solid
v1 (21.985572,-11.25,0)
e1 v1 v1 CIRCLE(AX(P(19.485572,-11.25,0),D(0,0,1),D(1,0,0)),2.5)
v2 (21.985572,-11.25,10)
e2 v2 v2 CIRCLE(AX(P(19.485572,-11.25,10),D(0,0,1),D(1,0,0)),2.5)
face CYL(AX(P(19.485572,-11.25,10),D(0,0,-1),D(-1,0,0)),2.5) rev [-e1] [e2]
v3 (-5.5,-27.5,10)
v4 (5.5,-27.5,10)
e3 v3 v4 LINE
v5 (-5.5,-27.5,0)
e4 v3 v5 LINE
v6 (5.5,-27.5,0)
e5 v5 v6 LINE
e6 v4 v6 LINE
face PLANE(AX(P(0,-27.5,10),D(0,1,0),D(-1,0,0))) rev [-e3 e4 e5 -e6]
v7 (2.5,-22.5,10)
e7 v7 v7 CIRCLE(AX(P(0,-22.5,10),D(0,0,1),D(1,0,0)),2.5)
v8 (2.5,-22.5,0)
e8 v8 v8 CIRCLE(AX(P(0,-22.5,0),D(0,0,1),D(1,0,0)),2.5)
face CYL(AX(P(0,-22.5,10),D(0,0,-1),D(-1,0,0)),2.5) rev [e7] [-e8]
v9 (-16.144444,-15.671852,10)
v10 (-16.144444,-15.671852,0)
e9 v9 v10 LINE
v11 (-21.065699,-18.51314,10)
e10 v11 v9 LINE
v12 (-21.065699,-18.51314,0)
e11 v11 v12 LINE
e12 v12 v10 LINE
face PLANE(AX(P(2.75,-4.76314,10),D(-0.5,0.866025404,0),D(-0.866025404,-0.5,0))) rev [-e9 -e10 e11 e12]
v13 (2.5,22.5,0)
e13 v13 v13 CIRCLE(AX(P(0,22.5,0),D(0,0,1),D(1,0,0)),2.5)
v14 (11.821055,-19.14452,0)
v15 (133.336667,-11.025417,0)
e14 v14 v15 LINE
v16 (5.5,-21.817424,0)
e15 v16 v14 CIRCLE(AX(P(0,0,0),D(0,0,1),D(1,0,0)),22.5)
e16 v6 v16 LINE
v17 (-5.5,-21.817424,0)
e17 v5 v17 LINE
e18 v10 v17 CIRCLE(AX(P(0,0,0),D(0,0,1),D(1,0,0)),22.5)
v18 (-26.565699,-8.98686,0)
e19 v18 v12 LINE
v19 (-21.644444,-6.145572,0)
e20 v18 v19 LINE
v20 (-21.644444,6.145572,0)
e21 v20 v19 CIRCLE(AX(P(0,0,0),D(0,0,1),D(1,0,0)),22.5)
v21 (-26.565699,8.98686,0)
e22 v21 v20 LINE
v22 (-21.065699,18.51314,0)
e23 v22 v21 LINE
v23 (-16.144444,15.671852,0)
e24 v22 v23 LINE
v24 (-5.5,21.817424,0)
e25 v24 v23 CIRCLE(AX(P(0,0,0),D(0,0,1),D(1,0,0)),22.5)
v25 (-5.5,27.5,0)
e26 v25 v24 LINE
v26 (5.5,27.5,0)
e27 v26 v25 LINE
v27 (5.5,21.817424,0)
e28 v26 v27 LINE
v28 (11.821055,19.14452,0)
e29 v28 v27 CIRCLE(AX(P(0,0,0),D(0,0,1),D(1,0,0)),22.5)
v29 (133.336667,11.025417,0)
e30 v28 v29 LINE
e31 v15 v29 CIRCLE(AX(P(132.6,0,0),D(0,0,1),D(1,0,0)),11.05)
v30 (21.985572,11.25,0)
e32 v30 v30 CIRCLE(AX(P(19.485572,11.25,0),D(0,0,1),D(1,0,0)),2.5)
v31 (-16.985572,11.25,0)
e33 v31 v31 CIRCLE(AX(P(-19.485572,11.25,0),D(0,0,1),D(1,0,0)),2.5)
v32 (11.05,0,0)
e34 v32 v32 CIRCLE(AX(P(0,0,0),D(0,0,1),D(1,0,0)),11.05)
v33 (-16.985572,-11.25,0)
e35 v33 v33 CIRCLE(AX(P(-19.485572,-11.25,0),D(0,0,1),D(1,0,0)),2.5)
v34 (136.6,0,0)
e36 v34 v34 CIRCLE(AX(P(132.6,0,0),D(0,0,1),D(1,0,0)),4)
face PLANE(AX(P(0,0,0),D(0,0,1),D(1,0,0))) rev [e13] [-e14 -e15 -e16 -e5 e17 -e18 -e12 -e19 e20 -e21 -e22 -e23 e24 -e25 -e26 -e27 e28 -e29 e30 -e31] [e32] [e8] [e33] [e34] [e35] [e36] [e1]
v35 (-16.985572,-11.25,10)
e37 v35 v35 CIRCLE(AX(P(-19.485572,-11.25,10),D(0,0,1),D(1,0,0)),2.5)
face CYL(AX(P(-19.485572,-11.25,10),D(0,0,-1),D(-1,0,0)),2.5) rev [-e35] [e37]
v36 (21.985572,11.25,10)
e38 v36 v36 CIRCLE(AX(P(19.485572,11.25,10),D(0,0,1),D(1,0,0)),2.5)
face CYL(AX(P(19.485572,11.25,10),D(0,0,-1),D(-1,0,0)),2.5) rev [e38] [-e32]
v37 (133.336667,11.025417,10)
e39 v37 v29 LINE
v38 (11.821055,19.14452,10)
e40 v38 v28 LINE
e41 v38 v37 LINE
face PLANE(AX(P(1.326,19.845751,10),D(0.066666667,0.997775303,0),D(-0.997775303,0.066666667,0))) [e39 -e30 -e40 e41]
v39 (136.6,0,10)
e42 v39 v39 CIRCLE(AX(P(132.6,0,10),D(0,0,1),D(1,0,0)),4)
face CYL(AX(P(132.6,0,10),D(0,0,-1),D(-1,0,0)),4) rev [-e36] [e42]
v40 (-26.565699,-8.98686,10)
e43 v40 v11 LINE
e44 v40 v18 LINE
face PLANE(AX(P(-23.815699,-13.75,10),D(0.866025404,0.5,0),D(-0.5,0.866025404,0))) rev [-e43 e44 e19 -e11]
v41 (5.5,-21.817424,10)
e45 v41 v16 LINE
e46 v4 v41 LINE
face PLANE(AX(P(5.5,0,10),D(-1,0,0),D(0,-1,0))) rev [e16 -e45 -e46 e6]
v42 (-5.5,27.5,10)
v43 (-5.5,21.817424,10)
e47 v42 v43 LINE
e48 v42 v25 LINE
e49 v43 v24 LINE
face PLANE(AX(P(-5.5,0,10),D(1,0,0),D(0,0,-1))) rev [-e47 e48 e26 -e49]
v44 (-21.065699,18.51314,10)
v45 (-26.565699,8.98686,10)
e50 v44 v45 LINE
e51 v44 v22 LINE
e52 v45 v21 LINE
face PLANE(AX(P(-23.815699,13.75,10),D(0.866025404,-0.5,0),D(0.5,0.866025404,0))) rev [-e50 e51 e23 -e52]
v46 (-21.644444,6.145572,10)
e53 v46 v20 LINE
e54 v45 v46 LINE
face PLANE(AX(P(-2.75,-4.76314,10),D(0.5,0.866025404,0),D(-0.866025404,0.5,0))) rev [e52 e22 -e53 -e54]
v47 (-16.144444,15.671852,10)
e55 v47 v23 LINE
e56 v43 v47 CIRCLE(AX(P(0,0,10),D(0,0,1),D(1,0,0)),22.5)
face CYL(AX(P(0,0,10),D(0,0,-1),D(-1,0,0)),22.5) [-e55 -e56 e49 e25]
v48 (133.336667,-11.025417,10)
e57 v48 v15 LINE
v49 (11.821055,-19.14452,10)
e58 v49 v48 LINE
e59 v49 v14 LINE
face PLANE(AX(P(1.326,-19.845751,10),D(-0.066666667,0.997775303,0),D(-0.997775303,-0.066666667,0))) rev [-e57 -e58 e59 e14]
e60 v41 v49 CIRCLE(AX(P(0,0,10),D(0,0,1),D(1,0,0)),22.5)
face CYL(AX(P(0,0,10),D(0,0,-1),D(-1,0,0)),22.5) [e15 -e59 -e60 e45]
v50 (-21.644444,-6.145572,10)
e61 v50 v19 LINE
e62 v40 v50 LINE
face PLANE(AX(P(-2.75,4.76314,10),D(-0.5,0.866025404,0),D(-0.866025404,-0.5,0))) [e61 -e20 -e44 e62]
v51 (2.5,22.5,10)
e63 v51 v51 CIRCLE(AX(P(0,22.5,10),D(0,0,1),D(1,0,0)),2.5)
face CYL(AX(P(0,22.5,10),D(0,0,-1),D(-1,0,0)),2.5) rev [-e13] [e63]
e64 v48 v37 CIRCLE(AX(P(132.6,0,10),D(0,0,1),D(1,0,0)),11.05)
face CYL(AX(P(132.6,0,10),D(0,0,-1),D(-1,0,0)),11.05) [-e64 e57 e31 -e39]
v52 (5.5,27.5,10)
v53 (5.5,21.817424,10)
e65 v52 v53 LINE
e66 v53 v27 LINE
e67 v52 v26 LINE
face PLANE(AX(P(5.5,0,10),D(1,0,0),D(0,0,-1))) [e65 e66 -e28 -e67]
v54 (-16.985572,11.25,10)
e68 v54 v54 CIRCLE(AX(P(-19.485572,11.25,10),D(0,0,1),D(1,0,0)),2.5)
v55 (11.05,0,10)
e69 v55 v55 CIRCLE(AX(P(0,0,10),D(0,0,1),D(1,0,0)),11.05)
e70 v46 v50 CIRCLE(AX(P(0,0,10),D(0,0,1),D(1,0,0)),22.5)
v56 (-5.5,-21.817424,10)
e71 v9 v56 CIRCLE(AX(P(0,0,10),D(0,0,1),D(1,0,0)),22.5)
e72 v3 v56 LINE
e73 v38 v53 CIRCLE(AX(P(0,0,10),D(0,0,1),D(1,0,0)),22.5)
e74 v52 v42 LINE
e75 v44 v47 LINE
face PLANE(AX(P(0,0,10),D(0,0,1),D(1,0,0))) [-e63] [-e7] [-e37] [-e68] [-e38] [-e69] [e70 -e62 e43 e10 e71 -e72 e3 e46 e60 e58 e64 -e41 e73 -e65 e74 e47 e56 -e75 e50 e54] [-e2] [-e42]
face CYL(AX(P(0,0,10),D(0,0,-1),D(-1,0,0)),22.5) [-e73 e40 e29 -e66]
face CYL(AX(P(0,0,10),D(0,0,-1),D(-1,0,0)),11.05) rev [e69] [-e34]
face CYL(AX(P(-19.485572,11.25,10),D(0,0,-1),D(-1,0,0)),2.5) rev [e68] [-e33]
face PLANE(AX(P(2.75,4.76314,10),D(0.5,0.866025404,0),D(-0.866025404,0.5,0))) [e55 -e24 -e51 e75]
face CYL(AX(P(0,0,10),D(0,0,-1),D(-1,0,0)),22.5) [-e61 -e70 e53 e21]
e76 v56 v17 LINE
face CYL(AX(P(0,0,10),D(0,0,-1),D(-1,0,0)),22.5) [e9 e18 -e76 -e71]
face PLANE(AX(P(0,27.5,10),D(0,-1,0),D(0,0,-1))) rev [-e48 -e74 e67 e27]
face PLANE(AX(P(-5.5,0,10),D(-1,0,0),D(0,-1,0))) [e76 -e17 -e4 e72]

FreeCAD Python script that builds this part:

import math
import FreeCAD as App
import Part
import Sketcher
Q = App.Units.Quantity

doc = App.newDocument("Part")
params = doc.addObject("Spreadsheet::Sheet", "Params")
for row, (alias, value) in enumerate([
    ("sketch1_diameter", "5 mm"),
    ("sketch1_diameter2", "8 mm"),
    ("sketch1_diameter3", "22.1 mm"),
    ("sketch1_radius", "22.5 mm"),
    ("sketch1_width", "11 mm"),
    ("pad1_length", "10 mm"),
], start=1):
    params.set(f"A{row}", alias)
    params.set(f"B{row}", "=" + value)
    params.setAlias(f"B{row}", alias)

body = doc.addObject("PartDesign::Body", "Body")

# Sketch on XY plane
sketch1 = body.newObject("Sketcher::SketchObject", "Sketch")
sketch1.AttachmentSupport = (doc.getObject("XY_Plane"), [""])
sketch1.MapMode = "FlatFace"
sketch1.addGeometry(Part.ArcOfCircle(Part.Circle(App.Vector(0, 0, 0), App.Vector(0, 0, 1), 22.5), math.radians(58.31), math.radians(75.85)), False)
sketch1.addGeometry(Part.LineSegment(App.Vector(5.5, 21.8, 0), App.Vector(5.5, 27.5, 0)), False)
sketch1.addGeometry(Part.LineSegment(App.Vector(5.5, 27.5, 0), App.Vector(-5.5, 27.5, 0)), False)
sketch1.addGeometry(Part.LineSegment(App.Vector(-5.5, 27.5, 0), App.Vector(-5.5, 21.8, 0)), False)
sketch1.addGeometry(Part.ArcOfCircle(Part.Circle(App.Vector(0, 0, 0), App.Vector(0, 0, 1), 22.5), math.radians(104), math.radians(136)), False)
sketch1.addGeometry(Part.LineSegment(App.Vector(-16.1, 15.7, 0), App.Vector(-21.1, 18.5, 0)), False)
sketch1.addGeometry(Part.LineSegment(App.Vector(-21.1, 18.5, 0), App.Vector(-26.6, 9, 0)), False)
sketch1.addGeometry(Part.LineSegment(App.Vector(-26.6, 9, 0), App.Vector(-21.6, 6.1, 0)), False)
sketch1.addGeometry(Part.ArcOfCircle(Part.Circle(App.Vector(0, 0, 0), App.Vector(0, 0, 1), 22.5), math.radians(164), math.radians(196)), False)
sketch1.addGeometry(Part.LineSegment(App.Vector(-21.6, -6.1, 0), App.Vector(-26.6, -9, 0)), False)
sketch1.addGeometry(Part.LineSegment(App.Vector(-26.6, -9, 0), App.Vector(-21.1, -18.5, 0)), False)
sketch1.addGeometry(Part.LineSegment(App.Vector(-21.1, -18.5, 0), App.Vector(-16.1, -15.7, 0)), False)
sketch1.addGeometry(Part.ArcOfCircle(Part.Circle(App.Vector(0, 0, 0), App.Vector(0, 0, 1), 22.5), math.radians(-136), math.radians(-104)), False)
sketch1.addGeometry(Part.LineSegment(App.Vector(-5.5, -21.8, 0), App.Vector(-5.5, -27.5, 0)), False)
sketch1.addGeometry(Part.LineSegment(App.Vector(-5.5, -27.5, 0), App.Vector(5.5, -27.5, 0)), False)
sketch1.addGeometry(Part.LineSegment(App.Vector(5.5, -27.5, 0), App.Vector(5.5, -21.8, 0)), False)
sketch1.addGeometry(Part.ArcOfCircle(Part.Circle(App.Vector(0, 0, 0), App.Vector(0, 0, 1), 22.5), math.radians(-75.85), math.radians(-58.31)), False)
sketch1.addGeometry(Part.LineSegment(App.Vector(11.8, -19.1, 0), App.Vector(133.3, -11, 0)), False)
sketch1.addGeometry(Part.ArcOfCircle(Part.Circle(App.Vector(132.6, 0, 0), App.Vector(0, 0, 1), 11.1), math.radians(-86), math.radians(86)), False)
sketch1.addGeometry(Part.LineSegment(App.Vector(133.3, 11, 0), App.Vector(11.8, 19.1, 0)), False)
sketch1.addGeometry(Part.Circle(App.Vector(0, -22.5, 0), App.Vector(0, 0, 1), 2.5), False)
sketch1.addGeometry(Part.Circle(App.Vector(-19.5, -11.2, 0), App.Vector(0, 0, 1), 2.5), False)
sketch1.addGeometry(Part.Circle(App.Vector(19.5, -11.2, 0), App.Vector(0, 0, 1), 2.5), False)
sketch1.addGeometry(Part.Circle(App.Vector(0, 0, 0), App.Vector(0, 0, 1), 11.1), False)
sketch1.addGeometry(Part.Circle(App.Vector(-19.5, 11.2, 0), App.Vector(0, 0, 1), 2.5), False)
sketch1.addGeometry(Part.Circle(App.Vector(19.5, 11.2, 0), App.Vector(0, 0, 1), 2.5), False)
sketch1.addGeometry(Part.Circle(App.Vector(0, 22.5, 0), App.Vector(0, 0, 1), 2.5), False)
sketch1.addGeometry(Part.Circle(App.Vector(132.6, 0, 0), App.Vector(0, 0, 1), 4), False)
sketch1.addConstraint(Sketcher.Constraint("Coincident", 0, 2, 1, 1))
sketch1.addConstraint(Sketcher.Constraint("Coincident", 1, 2, 2, 1))
sketch1.addConstraint(Sketcher.Constraint("Coincident", 2, 2, 3, 1))
sketch1.addConstraint(Sketcher.Constraint("Coincident", 3, 2, 4, 1))
sketch1.addConstraint(Sketcher.Constraint("Coincident", 4, 2, 5, 1))
sketch1.addConstraint(Sketcher.Constraint("Coincident", 5, 2, 6, 1))
sketch1.addConstraint(Sketcher.Constraint("Coincident", 6, 2, 7, 1))
sketch1.addConstraint(Sketcher.Constraint("Coincident", 7, 2, 8, 1))
sketch1.addConstraint(Sketcher.Constraint("Coincident", 8, 2, 9, 1))
sketch1.addConstraint(Sketcher.Constraint("Coincident", 9, 2, 10, 1))
sketch1.addConstraint(Sketcher.Constraint("Coincident", 10, 2, 11, 1))
sketch1.addConstraint(Sketcher.Constraint("Coincident", 11, 2, 12, 1))
sketch1.addConstraint(Sketcher.Constraint("Coincident", 12, 2, 13, 1))
sketch1.addConstraint(Sketcher.Constraint("Coincident", 13, 2, 14, 1))
sketch1.addConstraint(Sketcher.Constraint("Coincident", 14, 2, 15, 1))
sketch1.addConstraint(Sketcher.Constraint("Coincident", 15, 2, 16, 1))
sketch1.addConstraint(Sketcher.Constraint("Coincident", 16, 2, 17, 1))
sketch1.addConstraint(Sketcher.Constraint("Tangent", 17, 2, 18, 1))
sketch1.addConstraint(Sketcher.Constraint("Tangent", 18, 2, 19, 1))
sketch1.addConstraint(Sketcher.Constraint("Coincident", 19, 2, 0, 1))
sketch1.addConstraint(Sketcher.Constraint("Vertical", 1))
sketch1.addConstraint(Sketcher.Constraint("Horizontal", 2))
sketch1.addConstraint(Sketcher.Constraint("Vertical", 3))
sketch1.addConstraint(Sketcher.Constraint("Vertical", 13))
sketch1.addConstraint(Sketcher.Constraint("Horizontal", 14))
sketch1.addConstraint(Sketcher.Constraint("Vertical", 15))
sketch1.addConstraint(Sketcher.Constraint("Coincident", 0, 3, -1, 1))
sketch1.addConstraint(Sketcher.Constraint("Coincident", 4, 3, -1, 1))
sketch1.addConstraint(Sketcher.Constraint("Coincident", 8, 3, -1, 1))
sketch1.addConstraint(Sketcher.Constraint("Coincident", 12, 3, -1, 1))
sketch1.addConstraint(Sketcher.Constraint("Coincident", 16, 3, -1, 1))
sketch1.addConstraint(Sketcher.Constraint("Coincident", 23, 3, -1, 1))
sketch1.addConstraint(Sketcher.Constraint("Coincident", 27, 3, 18, 3))
sketch1.addConstraint(Sketcher.Constraint("Equal", 0, 4))
sketch1.addConstraint(Sketcher.Constraint("Equal", 4, 8))
sketch1.addConstraint(Sketcher.Constraint("Equal", 8, 12))
sketch1.addConstraint(Sketcher.Constraint("Equal", 12, 16))
sketch1.addConstraint(Sketcher.Constraint("Equal", 20, 21))
sketch1.addConstraint(Sketcher.Constraint("Equal", 21, 22))
sketch1.addConstraint(Sketcher.Constraint("Equal", 18, 23))
sketch1.addConstraint(Sketcher.Constraint("Equal", 22, 24))
sketch1.addConstraint(Sketcher.Constraint("Equal", 24, 25))
sketch1.addConstraint(Sketcher.Constraint("Equal", 25, 26))
sketch1.addConstraint(Sketcher.Constraint("Symmetric", 22, 3, 24, 3, -1, 1))
sketch1.addConstraint(Sketcher.Constraint("Symmetric", 21, 3, 25, 3, -1, 1))
sketch1.addConstraint(Sketcher.Constraint("Symmetric", 20, 3, 26, 3, -1, 1))
sketch1.addConstraint(Sketcher.Constraint("Symmetric", 1, 2, 13, 2, -1, 1))
sketch1.addConstraint(Sketcher.Constraint("Symmetric", 21, 3, 22, 3, -2))
sketch1.addConstraint(Sketcher.Constraint("Symmetric", 6, 2, 9, 2, -1))
sketch1.addConstraint(Sketcher.Constraint("Symmetric", 5, 2, 10, 2, -1))
sketch1.addConstraint(Sketcher.Constraint("Symmetric", 17, 2, 18, 2, -1))
sketch1.addConstraint(Sketcher.Constraint("PointOnObject", 20, 3, -2))
sketch1.addConstraint(Sketcher.Constraint("Perpendicular", 5, 6))
sketch1.addConstraint(Sketcher.Constraint("Perpendicular", 6, 7))
sketch1.addConstraint(Sketcher.Constraint("Perpendicular", 9, 10))
sketch1.addConstraint(Sketcher.Constraint("Perpendicular", 10, 11))
sketch1.addConstraint(Sketcher.Constraint("Horizontal", 0, 2, 3, 2))
sketch1.addConstraint(Sketcher.Constraint("Horizontal", 12, 2, 15, 2))
sketch1.addConstraint(Sketcher.Constraint("Equal", 5, 7))
sketch1.addConstraint(Sketcher.Constraint("Diameter", 20, Q("5 mm")))
sketch1.addConstraint(Sketcher.Constraint("Diameter", 27, Q("8 mm")))
sketch1.addConstraint(Sketcher.Constraint("Diameter", 23, Q("22.1 mm")))
sketch1.addConstraint(Sketcher.Constraint("Radius", 0, Q("22.5 mm")))
sketch1.addConstraint(Sketcher.Constraint("DistanceX", 2, 2, 2, 1, Q("11 mm")))
sketch1.addConstraint(Sketcher.Constraint("Angle", 5, Q("150 deg")))
sketch1.addConstraint(Sketcher.Constraint("Distance", 6, Q("11 mm")))
sketch1.addConstraint(Sketcher.Constraint("DistanceY", 26, 3, 1, 2, Q("5 mm")))
sketch1.addConstraint(Sketcher.Constraint("DistanceX", -1, 1, 18, 3, Q("132.6 mm")))
sketch1.addConstraint(Sketcher.Constraint("DistanceY", 20, 3, -1, 1, Q("22.5 mm")))
sketch1.addConstraint(Sketcher.Constraint("DistanceY", 21, 3, 24, 3, Q("22.5 mm")))
sketch1.addConstraint(Sketcher.Constraint("DistanceX", 5, 2, -1, 1, Q("21.065699 mm")))
sketch1.addConstraint(Sketcher.Constraint("Distance", 17, Q("121.78655 mm")))
sketch1.addConstraint(Sketcher.Constraint("DistanceX", 21, 3, -1, 1, Q("19.485572 mm")))
sketch1.setExpression("Constraints[59]", "Params.sketch1_diameter")
sketch1.setExpression("Constraints[60]", "Params.sketch1_diameter2")
sketch1.setExpression("Constraints[61]", "Params.sketch1_diameter3")
sketch1.setExpression("Constraints[62]", "Params.sketch1_radius")
sketch1.setExpression("Constraints[63]", "Params.sketch1_width")
pad1 = body.newObject("PartDesign::Pad", "Pad")
pad1.Profile = sketch1
pad1.setExpression("Length", "Params.pad1_length")

doc.recompute()
